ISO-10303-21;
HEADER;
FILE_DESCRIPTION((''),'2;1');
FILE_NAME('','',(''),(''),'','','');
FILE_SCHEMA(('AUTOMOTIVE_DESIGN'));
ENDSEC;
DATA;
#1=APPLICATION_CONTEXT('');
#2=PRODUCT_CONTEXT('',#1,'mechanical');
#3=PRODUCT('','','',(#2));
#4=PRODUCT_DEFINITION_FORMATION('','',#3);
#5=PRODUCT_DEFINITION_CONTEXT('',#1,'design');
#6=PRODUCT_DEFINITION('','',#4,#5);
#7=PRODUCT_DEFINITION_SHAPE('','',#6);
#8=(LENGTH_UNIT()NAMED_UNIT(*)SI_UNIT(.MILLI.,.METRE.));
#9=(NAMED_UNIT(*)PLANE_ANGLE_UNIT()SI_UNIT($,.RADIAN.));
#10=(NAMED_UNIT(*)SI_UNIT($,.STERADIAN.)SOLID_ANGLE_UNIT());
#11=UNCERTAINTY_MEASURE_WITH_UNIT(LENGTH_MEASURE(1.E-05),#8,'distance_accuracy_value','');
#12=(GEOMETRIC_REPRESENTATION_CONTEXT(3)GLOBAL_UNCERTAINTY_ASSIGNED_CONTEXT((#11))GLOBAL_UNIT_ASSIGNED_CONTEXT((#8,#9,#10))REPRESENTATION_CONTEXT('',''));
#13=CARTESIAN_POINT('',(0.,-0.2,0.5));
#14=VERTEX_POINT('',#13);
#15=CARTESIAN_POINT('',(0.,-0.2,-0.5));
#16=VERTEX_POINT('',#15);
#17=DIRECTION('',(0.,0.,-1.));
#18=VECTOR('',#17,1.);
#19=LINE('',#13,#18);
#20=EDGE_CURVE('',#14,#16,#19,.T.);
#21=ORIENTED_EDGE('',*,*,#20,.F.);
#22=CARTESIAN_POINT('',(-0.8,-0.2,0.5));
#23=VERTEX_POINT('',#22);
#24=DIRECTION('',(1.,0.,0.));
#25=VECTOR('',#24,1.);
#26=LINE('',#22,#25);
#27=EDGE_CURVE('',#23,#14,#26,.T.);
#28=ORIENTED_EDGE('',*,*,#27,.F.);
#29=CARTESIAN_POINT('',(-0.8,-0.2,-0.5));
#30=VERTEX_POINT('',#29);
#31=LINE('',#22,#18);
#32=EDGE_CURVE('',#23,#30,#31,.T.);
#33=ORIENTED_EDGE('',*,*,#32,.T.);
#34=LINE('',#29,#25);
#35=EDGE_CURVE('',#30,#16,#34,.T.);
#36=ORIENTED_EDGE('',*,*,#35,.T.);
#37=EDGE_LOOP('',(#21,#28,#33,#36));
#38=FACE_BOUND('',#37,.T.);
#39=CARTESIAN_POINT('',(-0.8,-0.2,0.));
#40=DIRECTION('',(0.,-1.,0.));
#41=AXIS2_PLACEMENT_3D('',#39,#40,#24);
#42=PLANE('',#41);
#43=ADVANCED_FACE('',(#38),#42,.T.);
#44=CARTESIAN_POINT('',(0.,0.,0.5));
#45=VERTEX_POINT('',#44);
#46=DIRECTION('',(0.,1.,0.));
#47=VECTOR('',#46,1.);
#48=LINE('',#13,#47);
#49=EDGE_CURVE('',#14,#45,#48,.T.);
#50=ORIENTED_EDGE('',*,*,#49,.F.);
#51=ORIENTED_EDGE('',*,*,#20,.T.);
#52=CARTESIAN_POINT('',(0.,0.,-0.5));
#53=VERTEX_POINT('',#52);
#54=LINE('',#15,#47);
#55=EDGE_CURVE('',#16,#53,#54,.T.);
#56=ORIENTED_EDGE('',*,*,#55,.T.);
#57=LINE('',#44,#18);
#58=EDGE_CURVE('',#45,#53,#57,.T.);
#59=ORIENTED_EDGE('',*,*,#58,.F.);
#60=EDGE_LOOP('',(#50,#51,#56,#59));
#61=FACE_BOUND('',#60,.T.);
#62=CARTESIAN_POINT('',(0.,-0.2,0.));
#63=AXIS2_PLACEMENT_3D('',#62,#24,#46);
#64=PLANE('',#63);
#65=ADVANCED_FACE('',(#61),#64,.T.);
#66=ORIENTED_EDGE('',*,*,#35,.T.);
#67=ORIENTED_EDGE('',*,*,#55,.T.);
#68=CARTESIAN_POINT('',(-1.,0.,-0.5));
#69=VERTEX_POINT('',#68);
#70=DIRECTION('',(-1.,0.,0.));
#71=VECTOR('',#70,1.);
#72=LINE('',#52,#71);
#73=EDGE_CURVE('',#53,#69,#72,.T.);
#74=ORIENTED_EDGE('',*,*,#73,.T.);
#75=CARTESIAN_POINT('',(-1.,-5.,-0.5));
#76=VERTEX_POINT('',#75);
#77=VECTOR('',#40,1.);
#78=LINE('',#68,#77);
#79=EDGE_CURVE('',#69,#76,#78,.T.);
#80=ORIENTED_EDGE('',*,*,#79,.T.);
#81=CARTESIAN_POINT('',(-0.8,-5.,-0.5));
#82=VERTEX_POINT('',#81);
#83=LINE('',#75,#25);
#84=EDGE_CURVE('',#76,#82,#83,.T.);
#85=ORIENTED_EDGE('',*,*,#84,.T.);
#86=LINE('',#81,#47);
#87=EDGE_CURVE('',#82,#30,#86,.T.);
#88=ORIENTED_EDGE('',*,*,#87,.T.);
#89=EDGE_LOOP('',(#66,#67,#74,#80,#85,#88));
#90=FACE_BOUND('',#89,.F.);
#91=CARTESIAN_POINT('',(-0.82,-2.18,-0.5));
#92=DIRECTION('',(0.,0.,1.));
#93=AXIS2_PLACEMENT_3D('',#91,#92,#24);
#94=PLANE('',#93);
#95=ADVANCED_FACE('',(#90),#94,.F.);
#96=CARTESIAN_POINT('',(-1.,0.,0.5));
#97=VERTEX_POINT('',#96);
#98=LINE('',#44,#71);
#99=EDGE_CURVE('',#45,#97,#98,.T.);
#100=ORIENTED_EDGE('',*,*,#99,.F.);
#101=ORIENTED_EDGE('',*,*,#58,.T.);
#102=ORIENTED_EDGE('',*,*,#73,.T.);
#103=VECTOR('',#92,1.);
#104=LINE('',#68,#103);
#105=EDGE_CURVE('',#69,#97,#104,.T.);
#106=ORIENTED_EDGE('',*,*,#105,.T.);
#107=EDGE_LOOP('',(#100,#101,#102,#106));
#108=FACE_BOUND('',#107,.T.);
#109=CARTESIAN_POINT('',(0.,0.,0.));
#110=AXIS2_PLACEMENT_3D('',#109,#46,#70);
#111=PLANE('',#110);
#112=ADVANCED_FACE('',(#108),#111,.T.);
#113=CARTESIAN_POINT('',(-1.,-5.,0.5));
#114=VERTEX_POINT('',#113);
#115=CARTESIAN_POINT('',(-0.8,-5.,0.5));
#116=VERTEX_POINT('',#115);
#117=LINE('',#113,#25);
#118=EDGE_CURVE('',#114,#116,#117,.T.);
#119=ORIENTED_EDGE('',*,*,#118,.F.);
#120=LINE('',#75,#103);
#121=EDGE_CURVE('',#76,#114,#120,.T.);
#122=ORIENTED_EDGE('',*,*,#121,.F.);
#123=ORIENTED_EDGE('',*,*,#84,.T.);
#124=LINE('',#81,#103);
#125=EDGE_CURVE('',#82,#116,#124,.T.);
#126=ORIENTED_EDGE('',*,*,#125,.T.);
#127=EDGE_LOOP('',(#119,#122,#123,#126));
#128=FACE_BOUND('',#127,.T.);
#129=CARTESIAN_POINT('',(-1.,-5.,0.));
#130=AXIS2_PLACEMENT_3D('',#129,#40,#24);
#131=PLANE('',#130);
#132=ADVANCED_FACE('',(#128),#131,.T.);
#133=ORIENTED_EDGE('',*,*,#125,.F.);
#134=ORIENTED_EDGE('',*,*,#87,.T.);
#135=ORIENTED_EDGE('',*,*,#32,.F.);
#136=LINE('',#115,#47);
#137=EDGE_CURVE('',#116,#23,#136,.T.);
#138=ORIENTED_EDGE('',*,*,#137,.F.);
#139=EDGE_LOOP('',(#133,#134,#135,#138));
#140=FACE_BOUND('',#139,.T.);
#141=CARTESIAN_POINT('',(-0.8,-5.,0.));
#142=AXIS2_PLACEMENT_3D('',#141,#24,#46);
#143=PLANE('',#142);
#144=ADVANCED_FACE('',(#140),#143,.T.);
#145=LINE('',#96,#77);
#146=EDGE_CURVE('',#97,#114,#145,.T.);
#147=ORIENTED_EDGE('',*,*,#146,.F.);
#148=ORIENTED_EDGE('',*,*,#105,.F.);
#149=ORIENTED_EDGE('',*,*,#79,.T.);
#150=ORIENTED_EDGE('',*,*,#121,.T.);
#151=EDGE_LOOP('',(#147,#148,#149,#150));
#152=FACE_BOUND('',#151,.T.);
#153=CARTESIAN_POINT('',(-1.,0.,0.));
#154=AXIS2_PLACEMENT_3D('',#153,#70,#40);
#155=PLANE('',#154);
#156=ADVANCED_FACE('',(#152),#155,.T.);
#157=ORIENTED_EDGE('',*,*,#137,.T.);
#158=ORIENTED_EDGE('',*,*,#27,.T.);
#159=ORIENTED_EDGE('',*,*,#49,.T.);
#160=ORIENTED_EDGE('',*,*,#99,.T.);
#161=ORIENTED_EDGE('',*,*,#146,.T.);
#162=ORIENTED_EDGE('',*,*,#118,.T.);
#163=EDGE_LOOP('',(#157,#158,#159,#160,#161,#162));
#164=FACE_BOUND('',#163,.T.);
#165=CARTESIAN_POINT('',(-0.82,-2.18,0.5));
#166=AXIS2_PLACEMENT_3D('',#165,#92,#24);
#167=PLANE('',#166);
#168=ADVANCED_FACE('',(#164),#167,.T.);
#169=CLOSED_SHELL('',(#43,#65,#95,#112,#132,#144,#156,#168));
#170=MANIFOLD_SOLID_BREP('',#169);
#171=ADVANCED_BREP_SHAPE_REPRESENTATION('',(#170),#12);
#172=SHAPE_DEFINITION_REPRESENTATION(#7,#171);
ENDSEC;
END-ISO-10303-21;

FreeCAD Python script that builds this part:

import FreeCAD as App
import Part
import Sketcher
Q = App.Units.Quantity

doc = App.newDocument("Part")
body = doc.addObject("PartDesign::Body", "Body")

# Sketch on XY plane
sketch1 = body.newObject("Sketcher::SketchObject", "Sketch")
sketch1.AttachmentSupport = (doc.getObject("XY_Plane"), [""])
sketch1.MapMode = "FlatFace"
sketch1.addGeometry([
    Part.LineSegment(App.Vector(0, 0, 0), App.Vector(-1, 0, 0)),  # 0
    Part.LineSegment(App.Vector(-1, 0, 0), App.Vector(-1, -5, 0)),  # 1
    Part.LineSegment(App.Vector(-1, -5, 0), App.Vector(-0.8, -5, 0)),  # 2
    Part.LineSegment(App.Vector(-0.8, -5, 0), App.Vector(-0.8, -0.2, 0)),  # 3
    Part.LineSegment(App.Vector(-0.8, -0.2, 0), App.Vector(0, -0.2, 0)),  # 4
    Part.LineSegment(App.Vector(0, -0.2, 0), App.Vector(0, 0, 0)),  # 5
], False)
sketch1.addConstraint([
    Sketcher.Constraint("Coincident", 0, 2, 1, 1),
    Sketcher.Constraint("Coincident", 1, 2, 2, 1),
    Sketcher.Constraint("Coincident", 2, 2, 3, 1),
    Sketcher.Constraint("Coincident", 3, 2, 4, 1),
    Sketcher.Constraint("Coincident", 4, 2, 5, 1),
    Sketcher.Constraint("Coincident", 5, 2, 0, 1),
    Sketcher.Constraint("Horizontal", 0),
    Sketcher.Constraint("Vertical", 1),
    Sketcher.Constraint("Horizontal", 2),
    Sketcher.Constraint("Vertical", 3),
    Sketcher.Constraint("Horizontal", 4),
    Sketcher.Constraint("Vertical", 5),
    Sketcher.Constraint("Coincident", 5, 2, -1, 1),
    Sketcher.Constraint("Equal", 2, 5),
    Sketcher.Constraint("DistanceX", 0, 2, 0, 1, Q("1 mm")),
    Sketcher.Constraint("DistanceY", 1, 2, 1, 1, Q("5 mm")),
    Sketcher.Constraint("DistanceX", 2, 1, 2, 2, Q("0.2 mm")),
])
pad1 = body.newObject("PartDesign::Pad", "Pad")
pad1.Profile = sketch1
pad1.Length = 1
pad1.Midplane = True

doc.recompute()
